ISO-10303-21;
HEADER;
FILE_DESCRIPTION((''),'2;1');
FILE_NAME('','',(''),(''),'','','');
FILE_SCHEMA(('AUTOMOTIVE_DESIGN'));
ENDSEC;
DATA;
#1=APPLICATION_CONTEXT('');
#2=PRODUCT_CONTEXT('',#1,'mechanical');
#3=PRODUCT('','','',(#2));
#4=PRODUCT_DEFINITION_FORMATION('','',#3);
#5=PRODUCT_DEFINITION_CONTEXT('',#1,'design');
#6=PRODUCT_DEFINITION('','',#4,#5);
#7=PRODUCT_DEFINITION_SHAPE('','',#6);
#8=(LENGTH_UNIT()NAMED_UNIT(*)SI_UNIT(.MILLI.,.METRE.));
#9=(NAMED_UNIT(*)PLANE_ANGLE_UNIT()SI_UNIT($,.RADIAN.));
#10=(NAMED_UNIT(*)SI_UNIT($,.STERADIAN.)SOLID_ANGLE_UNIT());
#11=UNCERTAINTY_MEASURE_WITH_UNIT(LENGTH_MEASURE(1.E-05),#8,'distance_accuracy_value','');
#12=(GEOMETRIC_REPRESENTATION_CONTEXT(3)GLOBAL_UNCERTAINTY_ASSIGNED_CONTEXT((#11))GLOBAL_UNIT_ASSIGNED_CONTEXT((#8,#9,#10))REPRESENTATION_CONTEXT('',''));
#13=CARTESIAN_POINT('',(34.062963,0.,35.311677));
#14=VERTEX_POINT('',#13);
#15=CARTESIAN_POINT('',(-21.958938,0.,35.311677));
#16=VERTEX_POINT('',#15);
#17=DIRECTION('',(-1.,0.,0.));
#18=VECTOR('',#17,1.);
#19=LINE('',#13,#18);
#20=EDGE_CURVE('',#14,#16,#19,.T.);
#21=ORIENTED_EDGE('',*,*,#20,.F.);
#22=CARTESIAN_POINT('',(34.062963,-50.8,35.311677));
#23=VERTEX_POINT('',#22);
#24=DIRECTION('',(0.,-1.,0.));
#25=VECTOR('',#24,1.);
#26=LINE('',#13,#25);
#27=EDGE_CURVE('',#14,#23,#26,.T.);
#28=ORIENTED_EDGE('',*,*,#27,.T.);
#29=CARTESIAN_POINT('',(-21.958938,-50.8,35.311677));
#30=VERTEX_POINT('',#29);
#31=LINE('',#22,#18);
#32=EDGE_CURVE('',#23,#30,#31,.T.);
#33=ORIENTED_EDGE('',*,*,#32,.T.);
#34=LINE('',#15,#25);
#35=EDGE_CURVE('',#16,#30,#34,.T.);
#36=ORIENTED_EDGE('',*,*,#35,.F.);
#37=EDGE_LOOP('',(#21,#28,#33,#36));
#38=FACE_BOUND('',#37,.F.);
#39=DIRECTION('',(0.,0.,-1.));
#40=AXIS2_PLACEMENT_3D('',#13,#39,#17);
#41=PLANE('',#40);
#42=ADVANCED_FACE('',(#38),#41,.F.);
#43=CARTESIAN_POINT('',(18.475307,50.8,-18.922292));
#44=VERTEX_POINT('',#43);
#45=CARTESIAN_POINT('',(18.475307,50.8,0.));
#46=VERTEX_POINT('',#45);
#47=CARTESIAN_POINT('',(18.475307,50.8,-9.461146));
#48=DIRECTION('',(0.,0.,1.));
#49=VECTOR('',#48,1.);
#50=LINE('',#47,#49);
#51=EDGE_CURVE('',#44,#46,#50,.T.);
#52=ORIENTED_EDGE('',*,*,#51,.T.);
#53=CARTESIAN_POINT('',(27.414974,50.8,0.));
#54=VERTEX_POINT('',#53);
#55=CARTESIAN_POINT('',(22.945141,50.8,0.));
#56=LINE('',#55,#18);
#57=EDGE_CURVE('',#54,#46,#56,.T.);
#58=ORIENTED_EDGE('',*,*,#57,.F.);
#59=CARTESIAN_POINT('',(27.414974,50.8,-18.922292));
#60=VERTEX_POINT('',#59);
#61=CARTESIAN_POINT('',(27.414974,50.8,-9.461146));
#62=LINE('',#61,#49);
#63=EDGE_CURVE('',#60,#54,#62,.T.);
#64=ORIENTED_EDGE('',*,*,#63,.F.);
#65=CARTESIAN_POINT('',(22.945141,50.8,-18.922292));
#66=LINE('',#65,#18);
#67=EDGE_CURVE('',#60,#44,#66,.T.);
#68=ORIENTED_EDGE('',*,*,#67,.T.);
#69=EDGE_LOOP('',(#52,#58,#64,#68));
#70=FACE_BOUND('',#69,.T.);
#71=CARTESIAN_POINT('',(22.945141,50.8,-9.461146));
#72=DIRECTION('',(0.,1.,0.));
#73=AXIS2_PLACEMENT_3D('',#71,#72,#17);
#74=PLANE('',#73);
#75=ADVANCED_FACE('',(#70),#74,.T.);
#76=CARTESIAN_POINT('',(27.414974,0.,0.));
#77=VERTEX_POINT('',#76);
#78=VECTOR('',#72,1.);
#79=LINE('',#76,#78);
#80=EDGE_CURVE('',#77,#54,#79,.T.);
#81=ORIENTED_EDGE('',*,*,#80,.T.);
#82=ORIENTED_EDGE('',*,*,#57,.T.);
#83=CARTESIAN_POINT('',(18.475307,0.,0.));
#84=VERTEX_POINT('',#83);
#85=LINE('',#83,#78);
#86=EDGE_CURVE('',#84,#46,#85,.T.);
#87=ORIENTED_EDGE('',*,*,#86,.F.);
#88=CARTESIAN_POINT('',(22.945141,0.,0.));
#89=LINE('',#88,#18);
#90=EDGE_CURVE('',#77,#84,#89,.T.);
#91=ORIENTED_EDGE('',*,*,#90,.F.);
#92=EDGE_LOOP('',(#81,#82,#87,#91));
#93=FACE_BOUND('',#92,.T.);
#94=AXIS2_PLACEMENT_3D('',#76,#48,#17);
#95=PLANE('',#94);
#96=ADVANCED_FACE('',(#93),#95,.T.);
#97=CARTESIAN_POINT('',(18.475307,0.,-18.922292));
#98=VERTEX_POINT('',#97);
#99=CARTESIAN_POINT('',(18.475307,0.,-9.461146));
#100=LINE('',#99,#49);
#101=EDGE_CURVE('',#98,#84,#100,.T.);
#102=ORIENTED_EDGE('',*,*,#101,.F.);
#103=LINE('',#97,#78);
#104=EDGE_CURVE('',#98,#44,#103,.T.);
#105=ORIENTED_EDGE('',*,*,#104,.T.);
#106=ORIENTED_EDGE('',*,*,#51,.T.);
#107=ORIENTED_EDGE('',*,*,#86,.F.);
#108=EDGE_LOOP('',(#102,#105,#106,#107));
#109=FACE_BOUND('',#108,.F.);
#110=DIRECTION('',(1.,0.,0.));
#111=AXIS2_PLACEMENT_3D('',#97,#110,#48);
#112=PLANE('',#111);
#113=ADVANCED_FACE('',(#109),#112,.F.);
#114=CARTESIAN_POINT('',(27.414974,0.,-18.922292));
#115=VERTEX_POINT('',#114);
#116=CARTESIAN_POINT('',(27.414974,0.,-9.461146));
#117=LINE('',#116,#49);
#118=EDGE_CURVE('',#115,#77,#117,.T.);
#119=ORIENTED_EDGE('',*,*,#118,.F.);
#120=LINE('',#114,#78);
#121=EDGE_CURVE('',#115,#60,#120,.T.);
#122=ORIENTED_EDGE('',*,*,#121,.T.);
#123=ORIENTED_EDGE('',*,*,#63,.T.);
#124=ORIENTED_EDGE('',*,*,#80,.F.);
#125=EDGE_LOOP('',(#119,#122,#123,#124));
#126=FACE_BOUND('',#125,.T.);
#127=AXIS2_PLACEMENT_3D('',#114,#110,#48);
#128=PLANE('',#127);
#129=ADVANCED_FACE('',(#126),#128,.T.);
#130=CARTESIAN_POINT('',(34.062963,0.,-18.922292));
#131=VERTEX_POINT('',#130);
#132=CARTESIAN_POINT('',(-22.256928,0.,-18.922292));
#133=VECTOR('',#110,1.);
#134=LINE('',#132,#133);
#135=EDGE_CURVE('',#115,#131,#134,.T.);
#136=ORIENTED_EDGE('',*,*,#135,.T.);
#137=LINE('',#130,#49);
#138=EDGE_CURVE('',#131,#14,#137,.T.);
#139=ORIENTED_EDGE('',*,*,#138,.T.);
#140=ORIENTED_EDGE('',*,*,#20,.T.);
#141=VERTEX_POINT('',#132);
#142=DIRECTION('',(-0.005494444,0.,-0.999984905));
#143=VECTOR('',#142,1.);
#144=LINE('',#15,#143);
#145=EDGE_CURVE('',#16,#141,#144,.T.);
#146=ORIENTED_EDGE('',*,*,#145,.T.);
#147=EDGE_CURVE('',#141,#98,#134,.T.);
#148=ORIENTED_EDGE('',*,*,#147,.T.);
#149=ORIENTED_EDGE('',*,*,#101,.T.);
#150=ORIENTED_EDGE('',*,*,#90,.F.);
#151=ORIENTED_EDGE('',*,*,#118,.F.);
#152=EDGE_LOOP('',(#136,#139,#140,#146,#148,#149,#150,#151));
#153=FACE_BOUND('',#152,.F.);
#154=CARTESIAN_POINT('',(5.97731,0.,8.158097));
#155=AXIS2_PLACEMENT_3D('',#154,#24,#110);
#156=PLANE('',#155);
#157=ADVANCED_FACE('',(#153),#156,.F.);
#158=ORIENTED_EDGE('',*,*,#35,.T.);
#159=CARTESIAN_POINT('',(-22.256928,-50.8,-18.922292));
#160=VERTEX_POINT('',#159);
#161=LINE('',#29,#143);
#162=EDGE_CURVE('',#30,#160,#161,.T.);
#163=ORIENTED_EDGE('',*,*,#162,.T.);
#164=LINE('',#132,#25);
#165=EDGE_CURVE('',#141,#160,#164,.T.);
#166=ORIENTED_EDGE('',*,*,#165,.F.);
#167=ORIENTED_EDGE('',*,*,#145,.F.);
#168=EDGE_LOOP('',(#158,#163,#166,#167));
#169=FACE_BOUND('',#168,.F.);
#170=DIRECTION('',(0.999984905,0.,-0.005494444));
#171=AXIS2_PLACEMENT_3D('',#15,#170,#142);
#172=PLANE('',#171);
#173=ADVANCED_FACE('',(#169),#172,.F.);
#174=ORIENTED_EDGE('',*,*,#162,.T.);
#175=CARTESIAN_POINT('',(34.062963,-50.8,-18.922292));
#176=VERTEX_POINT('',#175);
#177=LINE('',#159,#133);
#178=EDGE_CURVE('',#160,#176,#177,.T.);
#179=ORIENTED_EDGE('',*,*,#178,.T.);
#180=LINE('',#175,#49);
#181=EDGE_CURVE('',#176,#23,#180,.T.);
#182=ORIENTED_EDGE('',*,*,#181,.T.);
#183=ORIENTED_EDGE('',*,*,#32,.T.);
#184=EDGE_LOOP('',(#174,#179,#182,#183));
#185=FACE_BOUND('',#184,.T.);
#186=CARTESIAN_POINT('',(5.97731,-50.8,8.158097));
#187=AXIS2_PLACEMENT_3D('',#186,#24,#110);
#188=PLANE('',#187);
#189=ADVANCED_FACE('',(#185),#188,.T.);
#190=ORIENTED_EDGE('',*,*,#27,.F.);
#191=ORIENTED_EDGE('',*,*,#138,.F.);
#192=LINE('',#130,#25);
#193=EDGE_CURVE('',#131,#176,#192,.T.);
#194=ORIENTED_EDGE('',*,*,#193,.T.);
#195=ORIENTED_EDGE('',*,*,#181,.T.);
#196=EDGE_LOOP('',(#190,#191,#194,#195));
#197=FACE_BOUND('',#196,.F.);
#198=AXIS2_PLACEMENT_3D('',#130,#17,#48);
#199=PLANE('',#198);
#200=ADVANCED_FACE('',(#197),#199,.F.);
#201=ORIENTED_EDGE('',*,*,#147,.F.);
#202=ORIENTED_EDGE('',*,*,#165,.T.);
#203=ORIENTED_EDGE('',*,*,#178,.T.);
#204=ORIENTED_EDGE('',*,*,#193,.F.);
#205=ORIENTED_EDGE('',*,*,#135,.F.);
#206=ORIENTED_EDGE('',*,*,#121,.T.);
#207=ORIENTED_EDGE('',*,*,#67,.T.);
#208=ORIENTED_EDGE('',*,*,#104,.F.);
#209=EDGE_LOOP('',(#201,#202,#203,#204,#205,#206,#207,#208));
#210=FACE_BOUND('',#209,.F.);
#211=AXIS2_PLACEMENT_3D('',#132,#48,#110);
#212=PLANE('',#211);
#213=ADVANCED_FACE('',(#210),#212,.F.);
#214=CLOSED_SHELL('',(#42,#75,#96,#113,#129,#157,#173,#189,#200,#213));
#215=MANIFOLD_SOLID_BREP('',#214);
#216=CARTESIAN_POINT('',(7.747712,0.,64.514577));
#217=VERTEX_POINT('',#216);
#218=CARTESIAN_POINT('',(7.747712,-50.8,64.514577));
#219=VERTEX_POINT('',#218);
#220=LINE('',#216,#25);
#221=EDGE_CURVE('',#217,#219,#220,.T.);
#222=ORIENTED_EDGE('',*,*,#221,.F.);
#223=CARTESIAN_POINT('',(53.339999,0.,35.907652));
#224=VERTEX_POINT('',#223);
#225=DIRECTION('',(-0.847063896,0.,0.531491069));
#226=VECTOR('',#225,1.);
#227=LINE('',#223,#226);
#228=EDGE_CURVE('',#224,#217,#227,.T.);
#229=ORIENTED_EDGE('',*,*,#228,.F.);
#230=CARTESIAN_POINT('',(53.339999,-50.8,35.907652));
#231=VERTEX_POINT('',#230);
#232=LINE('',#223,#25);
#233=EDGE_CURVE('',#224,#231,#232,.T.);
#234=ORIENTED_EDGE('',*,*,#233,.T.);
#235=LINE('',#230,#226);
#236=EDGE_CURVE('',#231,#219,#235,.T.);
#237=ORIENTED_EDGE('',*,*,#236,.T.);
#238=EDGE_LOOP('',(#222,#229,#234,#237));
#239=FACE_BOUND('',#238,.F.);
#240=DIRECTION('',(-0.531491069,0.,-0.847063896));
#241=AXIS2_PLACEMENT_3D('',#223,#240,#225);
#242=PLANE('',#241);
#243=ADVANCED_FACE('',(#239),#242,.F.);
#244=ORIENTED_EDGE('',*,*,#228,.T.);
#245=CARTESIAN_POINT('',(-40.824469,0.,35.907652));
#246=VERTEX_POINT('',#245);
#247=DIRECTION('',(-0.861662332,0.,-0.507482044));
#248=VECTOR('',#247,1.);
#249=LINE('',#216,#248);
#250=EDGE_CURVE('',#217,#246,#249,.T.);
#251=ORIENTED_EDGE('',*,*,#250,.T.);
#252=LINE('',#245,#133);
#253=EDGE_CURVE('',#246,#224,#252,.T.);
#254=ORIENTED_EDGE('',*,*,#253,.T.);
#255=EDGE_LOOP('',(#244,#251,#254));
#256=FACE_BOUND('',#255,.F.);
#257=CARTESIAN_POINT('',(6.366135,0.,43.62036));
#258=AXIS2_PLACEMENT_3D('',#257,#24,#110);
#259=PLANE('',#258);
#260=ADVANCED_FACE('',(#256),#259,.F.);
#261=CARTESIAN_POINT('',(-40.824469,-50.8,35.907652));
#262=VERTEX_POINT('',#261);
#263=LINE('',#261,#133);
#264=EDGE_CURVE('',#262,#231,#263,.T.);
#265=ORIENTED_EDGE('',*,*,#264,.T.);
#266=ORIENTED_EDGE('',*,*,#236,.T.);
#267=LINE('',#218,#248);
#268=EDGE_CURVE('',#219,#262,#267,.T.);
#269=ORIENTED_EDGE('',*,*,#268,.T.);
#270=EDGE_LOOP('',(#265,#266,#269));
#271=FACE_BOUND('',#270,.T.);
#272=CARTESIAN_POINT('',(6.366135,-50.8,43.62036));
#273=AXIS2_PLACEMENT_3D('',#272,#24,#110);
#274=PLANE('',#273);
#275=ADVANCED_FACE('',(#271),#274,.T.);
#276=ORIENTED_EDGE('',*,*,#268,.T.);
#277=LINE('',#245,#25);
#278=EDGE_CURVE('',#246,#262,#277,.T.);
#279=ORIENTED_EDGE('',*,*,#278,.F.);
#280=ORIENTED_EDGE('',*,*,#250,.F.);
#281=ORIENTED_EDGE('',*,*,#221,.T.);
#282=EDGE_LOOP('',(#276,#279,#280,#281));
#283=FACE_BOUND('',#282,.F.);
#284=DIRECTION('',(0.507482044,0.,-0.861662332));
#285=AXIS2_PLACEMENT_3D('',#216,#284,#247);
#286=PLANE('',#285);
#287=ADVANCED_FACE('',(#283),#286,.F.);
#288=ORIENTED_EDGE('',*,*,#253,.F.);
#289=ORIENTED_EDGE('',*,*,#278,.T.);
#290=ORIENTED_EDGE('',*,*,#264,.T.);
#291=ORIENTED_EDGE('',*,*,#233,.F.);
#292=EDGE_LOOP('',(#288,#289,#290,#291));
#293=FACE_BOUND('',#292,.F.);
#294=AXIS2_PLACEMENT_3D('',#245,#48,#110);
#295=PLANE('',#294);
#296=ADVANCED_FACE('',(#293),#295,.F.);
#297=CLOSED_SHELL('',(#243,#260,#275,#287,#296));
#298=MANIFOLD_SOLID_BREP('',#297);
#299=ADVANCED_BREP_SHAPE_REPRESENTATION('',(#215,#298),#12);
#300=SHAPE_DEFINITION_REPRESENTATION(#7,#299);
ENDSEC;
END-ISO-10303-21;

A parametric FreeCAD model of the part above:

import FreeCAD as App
import Part
import Sketcher
from FreeCAD import Vector
Q = App.Units.Quantity


def add_polygon(sketch, points):
    """Adds a closed chain of lines whose ends are joined by coincident constraints."""
    first, n = sketch.GeometryCount, len(points)
    for a, b in zip(points, points[1:] + points[:1]):
        sketch.addGeometry(Part.LineSegment(App.Vector(*a, 0), App.Vector(*b, 0)), False)
    for i in range(n):
        sketch.addConstraint(Sketcher.Constraint("Coincident", first + i, 2, first + (i + 1) % n, 1))

doc = App.newDocument("Part")
body = doc.addObject("PartDesign::Body", "Body")

sketch1 = body.newObject("Sketcher::SketchObject", "Sketch")
sketch1.AttachmentSupport = (doc.getObject("XZ_Plane"), [""])
sketch1.MapMode = "FlatFace"
add_polygon(sketch1, [(34.062963, 35.311677), (-21.958938, 35.311677), (-22.256928, -18.922292), (34.062963, -18.922292)])
sketch1.addConstraint(Sketcher.Constraint("Horizontal", 0))
sketch1.addConstraint(Sketcher.Constraint("Horizontal", 2))
sketch1.addConstraint(Sketcher.Constraint("Vertical", 3))
sketch1.addConstraint(Sketcher.Constraint("DistanceX", 0, 2, 0, 1, 56.021901))
sketch1.addConstraint(Sketcher.Constraint("DistanceX", 2, 1, 2, 2, 56.319891))
sketch1.addConstraint(Sketcher.Constraint("DistanceY", 3, 1, 3, 2, 54.233969))
sketch1.addConstraint(Sketcher.Constraint("DistanceX", 0, 2, -1, 1, 21.958938))
sketch1.addConstraint(Sketcher.Constraint("DistanceY", 1, 2, -1, 1, 18.922292))
pad1 = body.newObject("PartDesign::Pad", "Pad")
pad1.Profile = sketch1
pad1.Length = Q("2 in")

sketch2 = body.newObject("Sketcher::SketchObject", "Sketch001")
sketch2.AttachmentSupport = (doc.getObject("XZ_Plane"), [""])
sketch2.MapMode = "FlatFace"
add_polygon(sketch2, [(27.414974, 0), (27.414974, -18.922292), (18.475307, -18.922292), (18.475307, 0)])
sketch2.addConstraint(Sketcher.Constraint("Vertical", 0))
sketch2.addConstraint(Sketcher.Constraint("Horizontal", 1))
sketch2.addConstraint(Sketcher.Constraint("Vertical", 2))
sketch2.addConstraint(Sketcher.Constraint("Horizontal", 3))
sketch2.addConstraint(Sketcher.Constraint("PointOnObject", 2, 2, -1))
sketch2.addConstraint(Sketcher.Constraint("DistanceY", 0, 2, 0, 1, 18.922292))
sketch2.addConstraint(Sketcher.Constraint("DistanceX", 1, 2, 1, 1, 8.939667))
sketch2.addConstraint(Sketcher.Constraint("DistanceX", -1, 1, 0, 2, 27.414974))
pad2 = body.newObject("PartDesign::Pad", "Pad001")
pad2.Profile = sketch2
pad2.Length = Q("2 in")
pad2.Reversed = True
body2 = doc.addObject("PartDesign::Body", "Body001")

sketch3 = body2.newObject("Sketcher::SketchObject", "Sketch002")
sketch3.AttachmentSupport = (doc.getObject("XZ_Plane001"), [""])
sketch3.MapMode = "FlatFace"
add_polygon(sketch3, [(7.747712, 64.514577), (-40.824469, 35.907652), (53.339999, 35.907652)])
sketch3.addConstraint(Sketcher.Constraint("Horizontal", 1))
sketch3.addConstraint(Sketcher.Constraint("DistanceX", -1, 1, 1, 2, Q("2.1 in")))
sketch3.addConstraint(Sketcher.Constraint("DistanceX", 1, 1, 1, 2, 94.164468))
sketch3.addConstraint(Sketcher.Constraint("Distance", 0, 56.37032))
sketch3.addConstraint(Sketcher.Constraint("DistanceX", 0, 2, 2, 2, 48.572181))
sketch3.addConstraint(Sketcher.Constraint("DistanceY", -1, 1, 0, 2, 35.907652))
pad3 = body2.newObject("PartDesign::Pad", "Pad002")
pad3.Profile = sketch3
pad3.Length = Q("2 in")

doc.recompute()
